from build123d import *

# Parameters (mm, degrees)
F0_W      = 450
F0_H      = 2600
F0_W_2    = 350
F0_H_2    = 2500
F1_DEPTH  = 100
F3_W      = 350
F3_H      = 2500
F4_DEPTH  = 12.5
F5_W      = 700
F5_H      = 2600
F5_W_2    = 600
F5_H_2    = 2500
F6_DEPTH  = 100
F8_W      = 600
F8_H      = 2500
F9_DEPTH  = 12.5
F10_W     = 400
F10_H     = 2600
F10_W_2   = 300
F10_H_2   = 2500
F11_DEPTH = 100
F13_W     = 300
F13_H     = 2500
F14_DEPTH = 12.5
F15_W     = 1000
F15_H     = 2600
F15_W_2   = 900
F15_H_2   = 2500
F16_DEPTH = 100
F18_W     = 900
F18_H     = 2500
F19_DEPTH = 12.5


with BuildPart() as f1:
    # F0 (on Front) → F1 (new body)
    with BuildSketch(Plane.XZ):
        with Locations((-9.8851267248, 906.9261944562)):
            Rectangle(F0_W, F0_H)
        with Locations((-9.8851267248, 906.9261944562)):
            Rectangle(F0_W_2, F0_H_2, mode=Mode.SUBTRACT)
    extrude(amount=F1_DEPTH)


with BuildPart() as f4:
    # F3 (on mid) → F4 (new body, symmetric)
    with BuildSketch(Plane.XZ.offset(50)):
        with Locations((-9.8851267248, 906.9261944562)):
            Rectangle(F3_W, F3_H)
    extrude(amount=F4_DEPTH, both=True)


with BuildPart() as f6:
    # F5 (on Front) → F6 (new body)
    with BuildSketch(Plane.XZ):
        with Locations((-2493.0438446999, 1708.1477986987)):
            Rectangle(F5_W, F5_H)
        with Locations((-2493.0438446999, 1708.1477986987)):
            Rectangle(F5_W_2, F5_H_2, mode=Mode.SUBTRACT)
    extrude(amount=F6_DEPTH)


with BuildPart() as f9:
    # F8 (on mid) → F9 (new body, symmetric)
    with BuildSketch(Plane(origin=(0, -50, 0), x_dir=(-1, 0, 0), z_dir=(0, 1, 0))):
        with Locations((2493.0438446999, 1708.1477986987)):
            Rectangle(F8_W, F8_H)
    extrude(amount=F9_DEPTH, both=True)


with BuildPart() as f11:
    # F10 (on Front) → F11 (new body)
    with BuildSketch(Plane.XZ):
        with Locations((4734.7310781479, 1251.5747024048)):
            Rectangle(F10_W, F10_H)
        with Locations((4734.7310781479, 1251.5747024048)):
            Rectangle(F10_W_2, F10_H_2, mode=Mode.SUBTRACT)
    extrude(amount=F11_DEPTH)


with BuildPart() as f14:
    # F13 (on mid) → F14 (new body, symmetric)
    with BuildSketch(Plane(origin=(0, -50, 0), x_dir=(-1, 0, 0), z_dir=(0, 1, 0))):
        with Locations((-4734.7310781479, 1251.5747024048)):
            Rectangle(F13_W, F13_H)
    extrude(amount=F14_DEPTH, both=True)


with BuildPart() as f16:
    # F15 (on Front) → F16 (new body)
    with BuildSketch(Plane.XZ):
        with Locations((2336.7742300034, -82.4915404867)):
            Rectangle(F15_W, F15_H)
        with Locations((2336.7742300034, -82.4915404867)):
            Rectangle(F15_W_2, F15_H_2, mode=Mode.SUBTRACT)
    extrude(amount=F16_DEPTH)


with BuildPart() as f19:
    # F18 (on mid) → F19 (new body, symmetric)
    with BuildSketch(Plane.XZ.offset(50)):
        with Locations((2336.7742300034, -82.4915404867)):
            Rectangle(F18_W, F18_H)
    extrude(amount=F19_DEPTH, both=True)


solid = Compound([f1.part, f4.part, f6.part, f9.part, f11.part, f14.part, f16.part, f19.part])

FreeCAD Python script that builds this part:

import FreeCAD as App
import Part
import Sketcher

V = App.Vector
Q = App.Units.Quantity

doc = App.newDocument("Part")
params = doc.addObject("Spreadsheet::Sheet", "Params")
for row, (alias, value) in enumerate([
    ("sketch1_width", "450 mm"),
    ("sketch1_width2", "350 mm"),
    ("sketch1_height", "2600 mm"),
    ("sketch1_height2", "2500 mm"),
    ("pad1_length", "100 mm"),
    ("sketch2_width", "350 mm"),
    ("sketch2_height", "2500 mm"),
    ("pad2_length", "25 mm"),
    ("sketch3_width", "700 mm"),
    ("sketch3_width2", "600 mm"),
    ("sketch3_height", "2600 mm"),
    ("sketch3_height2", "2500 mm"),
    ("pad3_length", "100 mm"),
    ("sketch4_width", "600 mm"),
    ("sketch4_height", "2500 mm"),
    ("pad4_length", "25 mm"),
    ("sketch5_width", "400 mm"),
    ("sketch5_width2", "300 mm"),
    ("sketch5_height", "2600 mm"),
    ("sketch5_height2", "2500 mm"),
    ("pad5_length", "100 mm"),
    ("sketch6_width", "300 mm"),
    ("sketch6_height", "2500 mm"),
    ("pad6_length", "25 mm"),
    ("sketch7_width", "1000 mm"),
    ("sketch7_width2", "900 mm"),
    ("sketch7_height", "2600 mm"),
    ("sketch7_height2", "2500 mm"),
    ("pad7_length", "100 mm"),
    ("sketch8_width", "900 mm"),
    ("sketch8_height", "2500 mm"),
    ("pad8_length", "25 mm"),
], start=1):
    params.set(f"A{row}", alias)
    params.set(f"B{row}", "=" + value)
    params.setAlias(f"B{row}", alias)

body = doc.addObject("PartDesign::Body", "Body")

sketch1 = body.newObject("Sketcher::SketchObject", "Sketch")
sketch1.AttachmentSupport = (doc.getObject("XZ_Plane"), [""])
sketch1.MapMode = "FlatFace"
sketch1.addGeometry(Part.LineSegment(V(-235, 2207, 0), V(-235, -393, 0)), False)
sketch1.addGeometry(Part.LineSegment(V(-235, -393, 0), V(215, -393, 0)), False)
sketch1.addGeometry(Part.LineSegment(V(215, -393, 0), V(215, 2207, 0)), False)
sketch1.addGeometry(Part.LineSegment(V(215, 2207, 0), V(-235, 2207, 0)), False)
sketch1.addGeometry(Part.LineSegment(V(165, -343, 0), V(-185, -343, 0)), False)
sketch1.addGeometry(Part.LineSegment(V(-185, -343, 0), V(-185, 2157, 0)), False)
sketch1.addGeometry(Part.LineSegment(V(-185, 2157, 0), V(165, 2157, 0)), False)
sketch1.addGeometry(Part.LineSegment(V(165, 2157, 0), V(165, -343, 0)), False)
sketch1.addConstraint(Sketcher.Constraint("Coincident", 0, 2, 1, 1))
sketch1.addConstraint(Sketcher.Constraint("Coincident", 1, 2, 2, 1))
sketch1.addConstraint(Sketcher.Constraint("Coincident", 2, 2, 3, 1))
sketch1.addConstraint(Sketcher.Constraint("Coincident", 3, 2, 0, 1))
sketch1.addConstraint(Sketcher.Constraint("Coincident", 4, 2, 5, 1))
sketch1.addConstraint(Sketcher.Constraint("Coincident", 5, 2, 6, 1))
sketch1.addConstraint(Sketcher.Constraint("Coincident", 6, 2, 7, 1))
sketch1.addConstraint(Sketcher.Constraint("Coincident", 7, 2, 4, 1))
sketch1.addConstraint(Sketcher.Constraint("Vertical", 0))
sketch1.addConstraint(Sketcher.Constraint("Horizontal", 1))
sketch1.addConstraint(Sketcher.Constraint("Vertical", 2))
sketch1.addConstraint(Sketcher.Constraint("Horizontal", 3))
sketch1.addConstraint(Sketcher.Constraint("Horizontal", 4))
sketch1.addConstraint(Sketcher.Constraint("Vertical", 5))
sketch1.addConstraint(Sketcher.Constraint("Horizontal", 6))
sketch1.addConstraint(Sketcher.Constraint("Vertical", 7))
sketch1.addConstraint(Sketcher.Constraint("DistanceX", 1, 1, 1, 2, Q("450 mm")))
sketch1.addConstraint(Sketcher.Constraint("DistanceX", 4, 2, 4, 1, Q("350 mm")))
sketch1.addConstraint(Sketcher.Constraint("DistanceY", 0, 2, 0, 1, Q("2600 mm")))
sketch1.addConstraint(Sketcher.Constraint("DistanceY", 5, 1, 5, 2, Q("2500 mm")))
sketch1.addConstraint(Sketcher.Constraint("DistanceX", 0, 2, 4, 2, Q("50 mm")))
sketch1.addConstraint(Sketcher.Constraint("DistanceY", 0, 2, 4, 2, Q("50 mm")))
sketch1.addConstraint(Sketcher.Constraint("DistanceX", 0, 2, -1, 1, Q("234.885127 mm")))
sketch1.addConstraint(Sketcher.Constraint("DistanceY", 0, 2, -1, 1, Q("393.073806 mm")))
sketch1.setExpression("Constraints[16]", "Params.sketch1_width")
sketch1.setExpression("Constraints[17]", "Params.sketch1_width2")
sketch1.setExpression("Constraints[18]", "Params.sketch1_height")
sketch1.setExpression("Constraints[19]", "Params.sketch1_height2")
pad1 = body.newObject("PartDesign::Pad", "Pad")
pad1.Profile = sketch1
pad1.setExpression("Length", "Params.pad1_length")
body2 = doc.addObject("PartDesign::Body", "Body001")

sketch2 = body2.newObject("Sketcher::SketchObject", "Sketch001")
sketch2.AttachmentSupport = (doc.getObject("XZ_Plane001"), [""])
sketch2.MapMode = "FlatFace"
sketch2.AttachmentOffset = App.Placement(V(0, 0, 50), App.Rotation())
sketch2.addGeometry(Part.LineSegment(V(-185, 2157, 0), V(-185, -343, 0)), False)
sketch2.addGeometry(Part.LineSegment(V(-185, -343, 0), V(165, -343, 0)), False)
sketch2.addGeometry(Part.LineSegment(V(165, -343, 0), V(165, 2157, 0)), False)
sketch2.addGeometry(Part.LineSegment(V(165, 2157, 0), V(-185, 2157, 0)), False)
sketch2.addConstraint(Sketcher.Constraint("Coincident", 0, 2, 1, 1))
sketch2.addConstraint(Sketcher.Constraint("Coincident", 1, 2, 2, 1))
sketch2.addConstraint(Sketcher.Constraint("Coincident", 2, 2, 3, 1))
sketch2.addConstraint(Sketcher.Constraint("Coincident", 3, 2, 0, 1))
sketch2.addConstraint(Sketcher.Constraint("Vertical", 0))
sketch2.addConstraint(Sketcher.Constraint("Horizontal", 1))
sketch2.addConstraint(Sketcher.Constraint("Vertical", 2))
sketch2.addConstraint(Sketcher.Constraint("Horizontal", 3))
sketch2.addConstraint(Sketcher.Constraint("DistanceX", 1, 1, 1, 2, Q("350 mm")))
sketch2.addConstraint(Sketcher.Constraint("DistanceY", 0, 2, 0, 1, Q("2500 mm")))
sketch2.addConstraint(Sketcher.Constraint("DistanceX", 0, 2, -1, 1, Q("184.885127 mm")))
sketch2.addConstraint(Sketcher.Constraint("DistanceY", 0, 2, -1, 1, Q("343.073806 mm")))
sketch2.setExpression("Constraints[8]", "Params.sketch2_width")
sketch2.setExpression("Constraints[9]", "Params.sketch2_height")
pad2 = body2.newObject("PartDesign::Pad", "Pad001")
pad2.Profile = sketch2
pad2.setExpression("Length", "Params.pad2_length")
pad2.Midplane = True
body3 = doc.addObject("PartDesign::Body", "Body002")

sketch3 = body3.newObject("Sketcher::SketchObject", "Sketch002")
sketch3.AttachmentSupport = (doc.getObject("XZ_Plane002"), [""])
sketch3.MapMode = "FlatFace"
sketch3.addGeometry(Part.LineSegment(V(-2843, 3008, 0), V(-2843, 408, 0)), False)
sketch3.addGeometry(Part.LineSegment(V(-2843, 408, 0), V(-2143, 408, 0)), False)
sketch3.addGeometry(Part.LineSegment(V(-2143, 408, 0), V(-2143, 3008, 0)), False)
sketch3.addGeometry(Part.LineSegment(V(-2143, 3008, 0), V(-2843, 3008, 0)), False)
sketch3.addGeometry(Part.LineSegment(V(-2193, 458, 0), V(-2793, 458, 0)), False)
sketch3.addGeometry(Part.LineSegment(V(-2793, 458, 0), V(-2793, 2958, 0)), False)
sketch3.addGeometry(Part.LineSegment(V(-2793, 2958, 0), V(-2193, 2958, 0)), False)
sketch3.addGeometry(Part.LineSegment(V(-2193, 2958, 0), V(-2193, 458, 0)), False)
sketch3.addConstraint(Sketcher.Constraint("Coincident", 0, 2, 1, 1))
sketch3.addConstraint(Sketcher.Constraint("Coincident", 1, 2, 2, 1))
sketch3.addConstraint(Sketcher.Constraint("Coincident", 2, 2, 3, 1))
sketch3.addConstraint(Sketcher.Constraint("Coincident", 3, 2, 0, 1))
sketch3.addConstraint(Sketcher.Constraint("Coincident", 4, 2, 5, 1))
sketch3.addConstraint(Sketcher.Constraint("Coincident", 5, 2, 6, 1))
sketch3.addConstraint(Sketcher.Constraint("Coincident", 6, 2, 7, 1))
sketch3.addConstraint(Sketcher.Constraint("Coincident", 7, 2, 4, 1))
sketch3.addConstraint(Sketcher.Constraint("Vertical", 0))
sketch3.addConstraint(Sketcher.Constraint("Horizontal", 1))
sketch3.addConstraint(Sketcher.Constraint("Vertical", 2))
sketch3.addConstraint(Sketcher.Constraint("Horizontal", 3))
sketch3.addConstraint(Sketcher.Constraint("Horizontal", 4))
sketch3.addConstraint(Sketcher.Constraint("Vertical", 5))
sketch3.addConstraint(Sketcher.Constraint("Horizontal", 6))
sketch3.addConstraint(Sketcher.Constraint("Vertical", 7))
sketch3.addConstraint(Sketcher.Constraint("DistanceX", 1, 1, 1, 2, Q("700 mm")))
sketch3.addConstraint(Sketcher.Constraint("DistanceX", 4, 2, 4, 1, Q("600 mm")))
sketch3.addConstraint(Sketcher.Constraint("DistanceY", 0, 2, 0, 1, Q("2600 mm")))
sketch3.addConstraint(Sketcher.Constraint("DistanceY", 5, 1, 5, 2, Q("2500 mm")))
sketch3.addConstraint(Sketcher.Constraint("DistanceX", 0, 2, 4, 2, Q("50 mm")))
sketch3.addConstraint(Sketcher.Constraint("DistanceY", 0, 2, 4, 2, Q("50 mm")))
sketch3.addConstraint(Sketcher.Constraint("DistanceY", -1, 1, 0, 2, Q("408.147799 mm")))
sketch3.addConstraint(Sketcher.Constraint("DistanceX", 0, 2, -1, 1, Q("2843.043845 mm")))
sketch3.setExpression("Constraints[16]", "Params.sketch3_width")
sketch3.setExpression("Constraints[17]", "Params.sketch3_width2")
sketch3.setExpression("Constraints[18]", "Params.sketch3_height")
sketch3.setExpression("Constraints[19]", "Params.sketch3_height2")
pad3 = body3.newObject("PartDesign::Pad", "Pad002")
pad3.Profile = sketch3
pad3.setExpression("Length", "Params.pad3_length")
body4 = doc.addObject("PartDesign::Body", "Body003")

sketch4 = body4.newObject("Sketcher::SketchObject", "Sketch003")
sketch4.AttachmentSupport = (doc.getObject("XZ_Plane003"), [""])
sketch4.MapMode = "FlatFace"
sketch4.AttachmentOffset = App.Placement(V(0, 0, 50), App.Rotation())
sketch4.addGeometry(Part.LineSegment(V(-2193, 2958, 0), V(-2193, 458, 0)), False)
sketch4.addGeometry(Part.LineSegment(V(-2193, 458, 0), V(-2793, 458, 0)), False)
sketch4.addGeometry(Part.LineSegment(V(-2793, 458, 0), V(-2793, 2958, 0)), False)
sketch4.addGeometry(Part.LineSegment(V(-2793, 2958, 0), V(-2193, 2958, 0)), False)
sketch4.addConstraint(Sketcher.Constraint("Coincident", 0, 2, 1, 1))
sketch4.addConstraint(Sketcher.Constraint("Coincident", 1, 2, 2, 1))
sketch4.addConstraint(Sketcher.Constraint("Coincident", 2, 2, 3, 1))
sketch4.addConstraint(Sketcher.Constraint("Coincident", 3, 2, 0, 1))
sketch4.addConstraint(Sketcher.Constraint("Vertical", 0))
sketch4.addConstraint(Sketcher.Constraint("Horizontal", 1))
sketch4.addConstraint(Sketcher.Constraint("Vertical", 2))
sketch4.addConstraint(Sketcher.Constraint("Horizontal", 3))
sketch4.addConstraint(Sketcher.Constraint("DistanceX", 1, 2, 1, 1, Q("600 mm")))
sketch4.addConstraint(Sketcher.Constraint("DistanceY", 0, 2, 0, 1, Q("2500 mm")))
sketch4.addConstraint(Sketcher.Constraint("DistanceY", -1, 1, 0, 2, Q("458.147799 mm")))
sketch4.addConstraint(Sketcher.Constraint("DistanceX", 0, 2, -1, 1, Q("2193.043845 mm")))
sketch4.setExpression("Constraints[8]", "Params.sketch4_width")
sketch4.setExpression("Constraints[9]", "Params.sketch4_height")
pad4 = body4.newObject("PartDesign::Pad", "Pad003")
pad4.Profile = sketch4
pad4.setExpression("Length", "Params.pad4_length")
pad4.Midplane = True
body5 = doc.addObject("PartDesign::Body", "Body004")

sketch5 = body5.newObject("Sketcher::SketchObject", "Sketch004")
sketch5.AttachmentSupport = (doc.getObject("XZ_Plane004"), [""])
sketch5.MapMode = "FlatFace"
sketch5.addGeometry(Part.LineSegment(V(4535, 2552, 0), V(4535, -48, 0)), False)
sketch5.addGeometry(Part.LineSegment(V(4535, -48, 0), V(4935, -48, 0)), False)
sketch5.addGeometry(Part.LineSegment(V(4935, -48, 0), V(4935, 2552, 0)), False)
sketch5.addGeometry(Part.LineSegment(V(4935, 2552, 0), V(4535, 2552, 0)), False)
sketch5.addGeometry(Part.LineSegment(V(4885, 2, 0), V(4585, 2, 0)), False)
sketch5.addGeometry(Part.LineSegment(V(4585, 2, 0), V(4585, 2502, 0)), False)
sketch5.addGeometry(Part.LineSegment(V(4585, 2502, 0), V(4885, 2502, 0)), False)
sketch5.addGeometry(Part.LineSegment(V(4885, 2502, 0), V(4885, 2, 0)), False)
sketch5.addConstraint(Sketcher.Constraint("Coincident", 0, 2, 1, 1))
sketch5.addConstraint(Sketcher.Constraint("Coincident", 1, 2, 2, 1))
sketch5.addConstraint(Sketcher.Constraint("Coincident", 2, 2, 3, 1))
sketch5.addConstraint(Sketcher.Constraint("Coincident", 3, 2, 0, 1))
sketch5.addConstraint(Sketcher.Constraint("Coincident", 4, 2, 5, 1))
sketch5.addConstraint(Sketcher.Constraint("Coincident", 5, 2, 6, 1))
sketch5.addConstraint(Sketcher.Constraint("Coincident", 6, 2, 7, 1))
sketch5.addConstraint(Sketcher.Constraint("Coincident", 7, 2, 4, 1))
sketch5.addConstraint(Sketcher.Constraint("Vertical", 0))
sketch5.addConstraint(Sketcher.Constraint("Horizontal", 1))
sketch5.addConstraint(Sketcher.Constraint("Vertical", 2))
sketch5.addConstraint(Sketcher.Constraint("Horizontal", 3))
sketch5.addConstraint(Sketcher.Constraint("Horizontal", 4))
sketch5.addConstraint(Sketcher.Constraint("Vertical", 5))
sketch5.addConstraint(Sketcher.Constraint("Horizontal", 6))
sketch5.addConstraint(Sketcher.Constraint("Vertical", 7))
sketch5.addConstraint(Sketcher.Constraint("DistanceX", 1, 1, 1, 2, Q("400 mm")))
sketch5.addConstraint(Sketcher.Constraint("DistanceX", 4, 2, 4, 1, Q("300 mm")))
sketch5.addConstraint(Sketcher.Constraint("DistanceY", 0, 2, 0, 1, Q("2600 mm")))
sketch5.addConstraint(Sketcher.Constraint("DistanceY", 5, 1, 5, 2, Q("2500 mm")))
sketch5.addConstraint(Sketcher.Constraint("DistanceX", 0, 2, 4, 2, Q("50 mm")))
sketch5.addConstraint(Sketcher.Constraint("DistanceY", 0, 2, 4, 2, Q("50 mm")))
sketch5.addConstraint(Sketcher.Constraint("DistanceX", -1, 1, 0, 2, Q("4534.731078 mm")))
sketch5.addConstraint(Sketcher.Constraint("DistanceY", 0, 2, -1, 1, Q("48.425298 mm")))
sketch5.setExpression("Constraints[16]", "Params.sketch5_width")
sketch5.setExpression("Constraints[17]", "Params.sketch5_width2")
sketch5.setExpression("Constraints[18]", "Params.sketch5_height")
sketch5.setExpression("Constraints[19]", "Params.sketch5_height2")
pad5 = body5.newObject("PartDesign::Pad", "Pad004")
pad5.Profile = sketch5
pad5.setExpression("Length", "Params.pad5_length")
body6 = doc.addObject("PartDesign::Body", "Body005")

sketch6 = body6.newObject("Sketcher::SketchObject", "Sketch005")
sketch6.AttachmentSupport = (doc.getObject("XZ_Plane005"), [""])
sketch6.MapMode = "FlatFace"
sketch6.AttachmentOffset = App.Placement(V(0, 0, 50), App.Rotation())
sketch6.addGeometry(Part.LineSegment(V(4885, 2502, 0), V(4885, 2, 0)), False)
sketch6.addGeometry(Part.LineSegment(V(4885, 2, 0), V(4585, 2, 0)), False)
sketch6.addGeometry(Part.LineSegment(V(4585, 2, 0), V(4585, 2502, 0)), False)
sketch6.addGeometry(Part.LineSegment(V(4585, 2502, 0), V(4885, 2502, 0)), False)
sketch6.addConstraint(Sketcher.Constraint("Coincident", 0, 2, 1, 1))
sketch6.addConstraint(Sketcher.Constraint("Coincident", 1, 2, 2, 1))
sketch6.addConstraint(Sketcher.Constraint("Coincident", 2, 2, 3, 1))
sketch6.addConstraint(Sketcher.Constraint("Coincident", 3, 2, 0, 1))
sketch6.addConstraint(Sketcher.Constraint("Vertical", 0))
sketch6.addConstraint(Sketcher.Constraint("Horizontal", 1))
sketch6.addConstraint(Sketcher.Constraint("Vertical", 2))
sketch6.addConstraint(Sketcher.Constraint("Horizontal", 3))
sketch6.addConstraint(Sketcher.Constraint("DistanceX", 1, 2, 1, 1, Q("300 mm")))
sketch6.addConstraint(Sketcher.Constraint("DistanceY", 0, 2, 0, 1, Q("2500 mm")))
sketch6.addConstraint(Sketcher.Constraint("DistanceX", -1, 1, 0, 2, Q("4884.731078 mm")))
sketch6.addConstraint(Sketcher.Constraint("DistanceY", -1, 1, 0, 2, Q("1.574702 mm")))
sketch6.setExpression("Constraints[8]", "Params.sketch6_width")
sketch6.setExpression("Constraints[9]", "Params.sketch6_height")
pad6 = body6.newObject("PartDesign::Pad", "Pad005")
pad6.Profile = sketch6
pad6.setExpression("Length", "Params.pad6_length")
pad6.Midplane = True
body7 = doc.addObject("PartDesign::Body", "Body006")

sketch7 = body7.newObject("Sketcher::SketchObject", "Sketch006")
sketch7.AttachmentSupport = (doc.getObject("XZ_Plane006"), [""])
sketch7.MapMode = "FlatFace"
sketch7.addGeometry(Part.LineSegment(V(1837, 1218, 0), V(1837, -1382, 0)), False)
sketch7.addGeometry(Part.LineSegment(V(1837, -1382, 0), V(2837, -1382, 0)), False)
sketch7.addGeometry(Part.LineSegment(V(2837, -1382, 0), V(2837, 1218, 0)), False)
sketch7.addGeometry(Part.LineSegment(V(2837, 1218, 0), V(1837, 1218, 0)), False)
sketch7.addGeometry(Part.LineSegment(V(2787, -1332, 0), V(1887, -1332, 0)), False)
sketch7.addGeometry(Part.LineSegment(V(1887, -1332, 0), V(1887, 1168, 0)), False)
sketch7.addGeometry(Part.LineSegment(V(1887, 1168, 0), V(2787, 1168, 0)), False)
sketch7.addGeometry(Part.LineSegment(V(2787, 1168, 0), V(2787, -1332, 0)), False)
sketch7.addConstraint(Sketcher.Constraint("Coincident", 0, 2, 1, 1))
sketch7.addConstraint(Sketcher.Constraint("Coincident", 1, 2, 2, 1))
sketch7.addConstraint(Sketcher.Constraint("Coincident", 2, 2, 3, 1))
sketch7.addConstraint(Sketcher.Constraint("Coincident", 3, 2, 0, 1))
sketch7.addConstraint(Sketcher.Constraint("Coincident", 4, 2, 5, 1))
sketch7.addConstraint(Sketcher.Constraint("Coincident", 5, 2, 6, 1))
sketch7.addConstraint(Sketcher.Constraint("Coincident", 6, 2, 7, 1))
sketch7.addConstraint(Sketcher.Constraint("Coincident", 7, 2, 4, 1))
sketch7.addConstraint(Sketcher.Constraint("Vertical", 0))
sketch7.addConstraint(Sketcher.Constraint("Horizontal", 1))
sketch7.addConstraint(Sketcher.Constraint("Vertical", 2))
sketch7.addConstraint(Sketcher.Constraint("Horizontal", 3))
sketch7.addConstraint(Sketcher.Constraint("Horizontal", 4))
sketch7.addConstraint(Sketcher.Constraint("Vertical", 5))
sketch7.addConstraint(Sketcher.Constraint("Horizontal", 6))
sketch7.addConstraint(Sketcher.Constraint("Vertical", 7))
sketch7.addConstraint(Sketcher.Constraint("DistanceX", 1, 1, 1, 2, Q("1000 mm")))
sketch7.addConstraint(Sketcher.Constraint("DistanceX", 4, 2, 4, 1, Q("900 mm")))
sketch7.addConstraint(Sketcher.Constraint("DistanceY", 0, 2, 0, 1, Q("2600 mm")))
sketch7.addConstraint(Sketcher.Constraint("DistanceY", 5, 1, 5, 2, Q("2500 mm")))
sketch7.addConstraint(Sketcher.Constraint("DistanceX", 0, 2, 4, 2, Q("50 mm")))
sketch7.addConstraint(Sketcher.Constraint("DistanceY", 0, 2, 4, 2, Q("50 mm")))
sketch7.addConstraint(Sketcher.Constraint("DistanceX", -1, 1, 0, 2, Q("1836.77423 mm")))
sketch7.addConstraint(Sketcher.Constraint("DistanceY", 0, 2, -1, 1, Q("1382.49154 mm")))
sketch7.setExpression("Constraints[16]", "Params.sketch7_width")
sketch7.setExpression("Constraints[17]", "Params.sketch7_width2")
sketch7.setExpression("Constraints[18]", "Params.sketch7_height")
sketch7.setExpression("Constraints[19]", "Params.sketch7_height2")
pad7 = body7.newObject("PartDesign::Pad", "Pad006")
pad7.Profile = sketch7
pad7.setExpression("Length", "Params.pad7_length")
body8 = doc.addObject("PartDesign::Body", "Body007")

sketch8 = body8.newObject("Sketcher::SketchObject", "Sketch007")
sketch8.AttachmentSupport = (doc.getObject("XZ_Plane007"), [""])
sketch8.MapMode = "FlatFace"
sketch8.AttachmentOffset = App.Placement(V(0, 0, 50), App.Rotation())
sketch8.addGeometry(Part.LineSegment(V(1887, 1168, 0), V(1887, -1332, 0)), False)
sketch8.addGeometry(Part.LineSegment(V(1887, -1332, 0), V(2787, -1332, 0)), False)
sketch8.addGeometry(Part.LineSegment(V(2787, -1332, 0), V(2787, 1168, 0)), False)
sketch8.addGeometry(Part.LineSegment(V(2787, 1168, 0), V(1887, 1168, 0)), False)
sketch8.addConstraint(Sketcher.Constraint("Coincident", 0, 2, 1, 1))
sketch8.addConstraint(Sketcher.Constraint("Coincident", 1, 2, 2, 1))
sketch8.addConstraint(Sketcher.Constraint("Coincident", 2, 2, 3, 1))
sketch8.addConstraint(Sketcher.Constraint("Coincident", 3, 2, 0, 1))
sketch8.addConstraint(Sketcher.Constraint("Vertical", 0))
sketch8.addConstraint(Sketcher.Constraint("Horizontal", 1))
sketch8.addConstraint(Sketcher.Constraint("Vertical", 2))
sketch8.addConstraint(Sketcher.Constraint("Horizontal", 3))
sketch8.addConstraint(Sketcher.Constraint("DistanceX", 1, 1, 1, 2, Q("900 mm")))
sketch8.addConstraint(Sketcher.Constraint("DistanceY", 0, 2, 0, 1, Q("2500 mm")))
sketch8.addConstraint(Sketcher.Constraint("DistanceX", -1, 1, 0, 2, Q("1886.77423 mm")))
sketch8.addConstraint(Sketcher.Constraint("DistanceY", 0, 2, -1, 1, Q("1332.49154 mm")))
sketch8.setExpression("Constraints[8]", "Params.sketch8_width")
sketch8.setExpression("Constraints[9]", "Params.sketch8_height")
pad8 = body8.newObject("PartDesign::Pad", "Pad007")
pad8.Profile = sketch8
pad8.setExpression("Length", "Params.pad8_length")
pad8.Midplane = True

doc.recompute()
